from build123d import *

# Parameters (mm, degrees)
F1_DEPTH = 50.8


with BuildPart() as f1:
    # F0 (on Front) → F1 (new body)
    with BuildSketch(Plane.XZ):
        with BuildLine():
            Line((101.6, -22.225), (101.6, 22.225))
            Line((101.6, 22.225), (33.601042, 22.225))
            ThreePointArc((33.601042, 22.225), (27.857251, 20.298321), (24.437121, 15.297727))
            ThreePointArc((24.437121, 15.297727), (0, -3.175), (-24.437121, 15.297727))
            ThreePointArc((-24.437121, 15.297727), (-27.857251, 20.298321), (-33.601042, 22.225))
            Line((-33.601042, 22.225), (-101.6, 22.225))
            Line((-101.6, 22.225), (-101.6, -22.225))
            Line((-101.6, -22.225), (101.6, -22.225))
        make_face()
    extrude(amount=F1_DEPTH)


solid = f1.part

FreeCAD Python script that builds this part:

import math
import FreeCAD as App
import Part
import Sketcher
Q = App.Units.Quantity

doc = App.newDocument("Part")
params = doc.addObject("Spreadsheet::Sheet", "Params")
for row, (alias, value) in enumerate([
    ("sketch1_radius", "1 in"),
    ("sketch1_width", "8 in"),
    ("sketch1_radius2", "0.3750001 in"),
    ("sketch1_height", "1.75 in"),
    ("pad1_length", "2 in"),
], start=1):
    params.set(f"A{row}", alias)
    params.set(f"B{row}", "=" + value)
    params.setAlias(f"B{row}", alias)

body = doc.addObject("PartDesign::Body", "Body")

# Sketch on XZ plane
sketch1 = doc.addObject("Sketcher::SketchObject", "Sketch")
body.addObject(sketch1)
sketch1.AttachmentSupport = (doc.XZ_Plane, [""])
sketch1.MapMode = "FlatFace"
sketch1.addGeometry([
    Part.LineSegment(App.Vector(102, -22, 0), App.Vector(102, 22, 0)),  # 0
    Part.LineSegment(App.Vector(102, 22, 0), App.Vector(34, 22, 0)),  # 1
    Part.ArcOfCircle(Part.Circle(App.Vector(34, 13, 0), App.Vector(0, 0, 1), 10), math.radians(90), math.radians(164)),  # 2
    Part.ArcOfCircle(Part.Circle(App.Vector(0, 22, 0), App.Vector(0, 0, 1), 25), math.radians(-164), math.radians(-16)),  # 3
    Part.ArcOfCircle(Part.Circle(App.Vector(-34, 13, 0), App.Vector(0, 0, 1), 10), math.radians(16), math.radians(90)),  # 4
    Part.LineSegment(App.Vector(-34, 22, 0), App.Vector(-102, 22, 0)),  # 5
    Part.LineSegment(App.Vector(-102, 22, 0), App.Vector(-102, -22, 0)),  # 6
    Part.LineSegment(App.Vector(-102, -22, 0), App.Vector(102, -22, 0)),  # 7
], False)
sketch1.addConstraint([
    Sketcher.Constraint("Coincident", 0, 2, 1, 1),
    Sketcher.Constraint("Tangent", 1, 2, 2, 1),
    Sketcher.Constraint("Tangent", 2, 2, 3, 2),
    Sketcher.Constraint("Tangent", 3, 1, 4, 1),
    Sketcher.Constraint("Tangent", 4, 2, 5, 1),
    Sketcher.Constraint("Coincident", 5, 2, 6, 1),
    Sketcher.Constraint("Coincident", 6, 2, 7, 1),
    Sketcher.Constraint("Coincident", 7, 2, 0, 1),
    Sketcher.Constraint("Vertical", 0),
    Sketcher.Constraint("Horizontal", 1),
    Sketcher.Constraint("Horizontal", 5),
    Sketcher.Constraint("Vertical", 6),
    Sketcher.Constraint("Horizontal", 7),
    Sketcher.Constraint("Equal", 2, 4),
    Sketcher.Constraint("Symmetric", 0, 2, 6, 2, -1, 1),
    Sketcher.Constraint("Symmetric", 2, 3, 4, 3, -2),
    Sketcher.Constraint("Horizontal", 3, 3, 0, 2),
    Sketcher.Constraint("Radius", 3, Q("1 in")),
    Sketcher.Constraint("DistanceX", 7, 1, 7, 2, Q("8 in")),
    Sketcher.Constraint("Radius", 2, Q("0.3750001 in")),
    Sketcher.Constraint("DistanceY", 0, 1, 0, 2, Q("1.75 in")),
])
sketch1.setExpression("Constraints[17]", "Params.sketch1_radius")
sketch1.setExpression("Constraints[18]", "Params.sketch1_width")
sketch1.setExpression("Constraints[19]", "Params.sketch1_radius2")
sketch1.setExpression("Constraints[20]", "Params.sketch1_height")
pad1 = doc.addObject("PartDesign::Pad", "Pad")
body.addObject(pad1)
pad1.Profile = sketch1
pad1.setExpression("Length", "Params.pad1_length")

doc.recompute()
